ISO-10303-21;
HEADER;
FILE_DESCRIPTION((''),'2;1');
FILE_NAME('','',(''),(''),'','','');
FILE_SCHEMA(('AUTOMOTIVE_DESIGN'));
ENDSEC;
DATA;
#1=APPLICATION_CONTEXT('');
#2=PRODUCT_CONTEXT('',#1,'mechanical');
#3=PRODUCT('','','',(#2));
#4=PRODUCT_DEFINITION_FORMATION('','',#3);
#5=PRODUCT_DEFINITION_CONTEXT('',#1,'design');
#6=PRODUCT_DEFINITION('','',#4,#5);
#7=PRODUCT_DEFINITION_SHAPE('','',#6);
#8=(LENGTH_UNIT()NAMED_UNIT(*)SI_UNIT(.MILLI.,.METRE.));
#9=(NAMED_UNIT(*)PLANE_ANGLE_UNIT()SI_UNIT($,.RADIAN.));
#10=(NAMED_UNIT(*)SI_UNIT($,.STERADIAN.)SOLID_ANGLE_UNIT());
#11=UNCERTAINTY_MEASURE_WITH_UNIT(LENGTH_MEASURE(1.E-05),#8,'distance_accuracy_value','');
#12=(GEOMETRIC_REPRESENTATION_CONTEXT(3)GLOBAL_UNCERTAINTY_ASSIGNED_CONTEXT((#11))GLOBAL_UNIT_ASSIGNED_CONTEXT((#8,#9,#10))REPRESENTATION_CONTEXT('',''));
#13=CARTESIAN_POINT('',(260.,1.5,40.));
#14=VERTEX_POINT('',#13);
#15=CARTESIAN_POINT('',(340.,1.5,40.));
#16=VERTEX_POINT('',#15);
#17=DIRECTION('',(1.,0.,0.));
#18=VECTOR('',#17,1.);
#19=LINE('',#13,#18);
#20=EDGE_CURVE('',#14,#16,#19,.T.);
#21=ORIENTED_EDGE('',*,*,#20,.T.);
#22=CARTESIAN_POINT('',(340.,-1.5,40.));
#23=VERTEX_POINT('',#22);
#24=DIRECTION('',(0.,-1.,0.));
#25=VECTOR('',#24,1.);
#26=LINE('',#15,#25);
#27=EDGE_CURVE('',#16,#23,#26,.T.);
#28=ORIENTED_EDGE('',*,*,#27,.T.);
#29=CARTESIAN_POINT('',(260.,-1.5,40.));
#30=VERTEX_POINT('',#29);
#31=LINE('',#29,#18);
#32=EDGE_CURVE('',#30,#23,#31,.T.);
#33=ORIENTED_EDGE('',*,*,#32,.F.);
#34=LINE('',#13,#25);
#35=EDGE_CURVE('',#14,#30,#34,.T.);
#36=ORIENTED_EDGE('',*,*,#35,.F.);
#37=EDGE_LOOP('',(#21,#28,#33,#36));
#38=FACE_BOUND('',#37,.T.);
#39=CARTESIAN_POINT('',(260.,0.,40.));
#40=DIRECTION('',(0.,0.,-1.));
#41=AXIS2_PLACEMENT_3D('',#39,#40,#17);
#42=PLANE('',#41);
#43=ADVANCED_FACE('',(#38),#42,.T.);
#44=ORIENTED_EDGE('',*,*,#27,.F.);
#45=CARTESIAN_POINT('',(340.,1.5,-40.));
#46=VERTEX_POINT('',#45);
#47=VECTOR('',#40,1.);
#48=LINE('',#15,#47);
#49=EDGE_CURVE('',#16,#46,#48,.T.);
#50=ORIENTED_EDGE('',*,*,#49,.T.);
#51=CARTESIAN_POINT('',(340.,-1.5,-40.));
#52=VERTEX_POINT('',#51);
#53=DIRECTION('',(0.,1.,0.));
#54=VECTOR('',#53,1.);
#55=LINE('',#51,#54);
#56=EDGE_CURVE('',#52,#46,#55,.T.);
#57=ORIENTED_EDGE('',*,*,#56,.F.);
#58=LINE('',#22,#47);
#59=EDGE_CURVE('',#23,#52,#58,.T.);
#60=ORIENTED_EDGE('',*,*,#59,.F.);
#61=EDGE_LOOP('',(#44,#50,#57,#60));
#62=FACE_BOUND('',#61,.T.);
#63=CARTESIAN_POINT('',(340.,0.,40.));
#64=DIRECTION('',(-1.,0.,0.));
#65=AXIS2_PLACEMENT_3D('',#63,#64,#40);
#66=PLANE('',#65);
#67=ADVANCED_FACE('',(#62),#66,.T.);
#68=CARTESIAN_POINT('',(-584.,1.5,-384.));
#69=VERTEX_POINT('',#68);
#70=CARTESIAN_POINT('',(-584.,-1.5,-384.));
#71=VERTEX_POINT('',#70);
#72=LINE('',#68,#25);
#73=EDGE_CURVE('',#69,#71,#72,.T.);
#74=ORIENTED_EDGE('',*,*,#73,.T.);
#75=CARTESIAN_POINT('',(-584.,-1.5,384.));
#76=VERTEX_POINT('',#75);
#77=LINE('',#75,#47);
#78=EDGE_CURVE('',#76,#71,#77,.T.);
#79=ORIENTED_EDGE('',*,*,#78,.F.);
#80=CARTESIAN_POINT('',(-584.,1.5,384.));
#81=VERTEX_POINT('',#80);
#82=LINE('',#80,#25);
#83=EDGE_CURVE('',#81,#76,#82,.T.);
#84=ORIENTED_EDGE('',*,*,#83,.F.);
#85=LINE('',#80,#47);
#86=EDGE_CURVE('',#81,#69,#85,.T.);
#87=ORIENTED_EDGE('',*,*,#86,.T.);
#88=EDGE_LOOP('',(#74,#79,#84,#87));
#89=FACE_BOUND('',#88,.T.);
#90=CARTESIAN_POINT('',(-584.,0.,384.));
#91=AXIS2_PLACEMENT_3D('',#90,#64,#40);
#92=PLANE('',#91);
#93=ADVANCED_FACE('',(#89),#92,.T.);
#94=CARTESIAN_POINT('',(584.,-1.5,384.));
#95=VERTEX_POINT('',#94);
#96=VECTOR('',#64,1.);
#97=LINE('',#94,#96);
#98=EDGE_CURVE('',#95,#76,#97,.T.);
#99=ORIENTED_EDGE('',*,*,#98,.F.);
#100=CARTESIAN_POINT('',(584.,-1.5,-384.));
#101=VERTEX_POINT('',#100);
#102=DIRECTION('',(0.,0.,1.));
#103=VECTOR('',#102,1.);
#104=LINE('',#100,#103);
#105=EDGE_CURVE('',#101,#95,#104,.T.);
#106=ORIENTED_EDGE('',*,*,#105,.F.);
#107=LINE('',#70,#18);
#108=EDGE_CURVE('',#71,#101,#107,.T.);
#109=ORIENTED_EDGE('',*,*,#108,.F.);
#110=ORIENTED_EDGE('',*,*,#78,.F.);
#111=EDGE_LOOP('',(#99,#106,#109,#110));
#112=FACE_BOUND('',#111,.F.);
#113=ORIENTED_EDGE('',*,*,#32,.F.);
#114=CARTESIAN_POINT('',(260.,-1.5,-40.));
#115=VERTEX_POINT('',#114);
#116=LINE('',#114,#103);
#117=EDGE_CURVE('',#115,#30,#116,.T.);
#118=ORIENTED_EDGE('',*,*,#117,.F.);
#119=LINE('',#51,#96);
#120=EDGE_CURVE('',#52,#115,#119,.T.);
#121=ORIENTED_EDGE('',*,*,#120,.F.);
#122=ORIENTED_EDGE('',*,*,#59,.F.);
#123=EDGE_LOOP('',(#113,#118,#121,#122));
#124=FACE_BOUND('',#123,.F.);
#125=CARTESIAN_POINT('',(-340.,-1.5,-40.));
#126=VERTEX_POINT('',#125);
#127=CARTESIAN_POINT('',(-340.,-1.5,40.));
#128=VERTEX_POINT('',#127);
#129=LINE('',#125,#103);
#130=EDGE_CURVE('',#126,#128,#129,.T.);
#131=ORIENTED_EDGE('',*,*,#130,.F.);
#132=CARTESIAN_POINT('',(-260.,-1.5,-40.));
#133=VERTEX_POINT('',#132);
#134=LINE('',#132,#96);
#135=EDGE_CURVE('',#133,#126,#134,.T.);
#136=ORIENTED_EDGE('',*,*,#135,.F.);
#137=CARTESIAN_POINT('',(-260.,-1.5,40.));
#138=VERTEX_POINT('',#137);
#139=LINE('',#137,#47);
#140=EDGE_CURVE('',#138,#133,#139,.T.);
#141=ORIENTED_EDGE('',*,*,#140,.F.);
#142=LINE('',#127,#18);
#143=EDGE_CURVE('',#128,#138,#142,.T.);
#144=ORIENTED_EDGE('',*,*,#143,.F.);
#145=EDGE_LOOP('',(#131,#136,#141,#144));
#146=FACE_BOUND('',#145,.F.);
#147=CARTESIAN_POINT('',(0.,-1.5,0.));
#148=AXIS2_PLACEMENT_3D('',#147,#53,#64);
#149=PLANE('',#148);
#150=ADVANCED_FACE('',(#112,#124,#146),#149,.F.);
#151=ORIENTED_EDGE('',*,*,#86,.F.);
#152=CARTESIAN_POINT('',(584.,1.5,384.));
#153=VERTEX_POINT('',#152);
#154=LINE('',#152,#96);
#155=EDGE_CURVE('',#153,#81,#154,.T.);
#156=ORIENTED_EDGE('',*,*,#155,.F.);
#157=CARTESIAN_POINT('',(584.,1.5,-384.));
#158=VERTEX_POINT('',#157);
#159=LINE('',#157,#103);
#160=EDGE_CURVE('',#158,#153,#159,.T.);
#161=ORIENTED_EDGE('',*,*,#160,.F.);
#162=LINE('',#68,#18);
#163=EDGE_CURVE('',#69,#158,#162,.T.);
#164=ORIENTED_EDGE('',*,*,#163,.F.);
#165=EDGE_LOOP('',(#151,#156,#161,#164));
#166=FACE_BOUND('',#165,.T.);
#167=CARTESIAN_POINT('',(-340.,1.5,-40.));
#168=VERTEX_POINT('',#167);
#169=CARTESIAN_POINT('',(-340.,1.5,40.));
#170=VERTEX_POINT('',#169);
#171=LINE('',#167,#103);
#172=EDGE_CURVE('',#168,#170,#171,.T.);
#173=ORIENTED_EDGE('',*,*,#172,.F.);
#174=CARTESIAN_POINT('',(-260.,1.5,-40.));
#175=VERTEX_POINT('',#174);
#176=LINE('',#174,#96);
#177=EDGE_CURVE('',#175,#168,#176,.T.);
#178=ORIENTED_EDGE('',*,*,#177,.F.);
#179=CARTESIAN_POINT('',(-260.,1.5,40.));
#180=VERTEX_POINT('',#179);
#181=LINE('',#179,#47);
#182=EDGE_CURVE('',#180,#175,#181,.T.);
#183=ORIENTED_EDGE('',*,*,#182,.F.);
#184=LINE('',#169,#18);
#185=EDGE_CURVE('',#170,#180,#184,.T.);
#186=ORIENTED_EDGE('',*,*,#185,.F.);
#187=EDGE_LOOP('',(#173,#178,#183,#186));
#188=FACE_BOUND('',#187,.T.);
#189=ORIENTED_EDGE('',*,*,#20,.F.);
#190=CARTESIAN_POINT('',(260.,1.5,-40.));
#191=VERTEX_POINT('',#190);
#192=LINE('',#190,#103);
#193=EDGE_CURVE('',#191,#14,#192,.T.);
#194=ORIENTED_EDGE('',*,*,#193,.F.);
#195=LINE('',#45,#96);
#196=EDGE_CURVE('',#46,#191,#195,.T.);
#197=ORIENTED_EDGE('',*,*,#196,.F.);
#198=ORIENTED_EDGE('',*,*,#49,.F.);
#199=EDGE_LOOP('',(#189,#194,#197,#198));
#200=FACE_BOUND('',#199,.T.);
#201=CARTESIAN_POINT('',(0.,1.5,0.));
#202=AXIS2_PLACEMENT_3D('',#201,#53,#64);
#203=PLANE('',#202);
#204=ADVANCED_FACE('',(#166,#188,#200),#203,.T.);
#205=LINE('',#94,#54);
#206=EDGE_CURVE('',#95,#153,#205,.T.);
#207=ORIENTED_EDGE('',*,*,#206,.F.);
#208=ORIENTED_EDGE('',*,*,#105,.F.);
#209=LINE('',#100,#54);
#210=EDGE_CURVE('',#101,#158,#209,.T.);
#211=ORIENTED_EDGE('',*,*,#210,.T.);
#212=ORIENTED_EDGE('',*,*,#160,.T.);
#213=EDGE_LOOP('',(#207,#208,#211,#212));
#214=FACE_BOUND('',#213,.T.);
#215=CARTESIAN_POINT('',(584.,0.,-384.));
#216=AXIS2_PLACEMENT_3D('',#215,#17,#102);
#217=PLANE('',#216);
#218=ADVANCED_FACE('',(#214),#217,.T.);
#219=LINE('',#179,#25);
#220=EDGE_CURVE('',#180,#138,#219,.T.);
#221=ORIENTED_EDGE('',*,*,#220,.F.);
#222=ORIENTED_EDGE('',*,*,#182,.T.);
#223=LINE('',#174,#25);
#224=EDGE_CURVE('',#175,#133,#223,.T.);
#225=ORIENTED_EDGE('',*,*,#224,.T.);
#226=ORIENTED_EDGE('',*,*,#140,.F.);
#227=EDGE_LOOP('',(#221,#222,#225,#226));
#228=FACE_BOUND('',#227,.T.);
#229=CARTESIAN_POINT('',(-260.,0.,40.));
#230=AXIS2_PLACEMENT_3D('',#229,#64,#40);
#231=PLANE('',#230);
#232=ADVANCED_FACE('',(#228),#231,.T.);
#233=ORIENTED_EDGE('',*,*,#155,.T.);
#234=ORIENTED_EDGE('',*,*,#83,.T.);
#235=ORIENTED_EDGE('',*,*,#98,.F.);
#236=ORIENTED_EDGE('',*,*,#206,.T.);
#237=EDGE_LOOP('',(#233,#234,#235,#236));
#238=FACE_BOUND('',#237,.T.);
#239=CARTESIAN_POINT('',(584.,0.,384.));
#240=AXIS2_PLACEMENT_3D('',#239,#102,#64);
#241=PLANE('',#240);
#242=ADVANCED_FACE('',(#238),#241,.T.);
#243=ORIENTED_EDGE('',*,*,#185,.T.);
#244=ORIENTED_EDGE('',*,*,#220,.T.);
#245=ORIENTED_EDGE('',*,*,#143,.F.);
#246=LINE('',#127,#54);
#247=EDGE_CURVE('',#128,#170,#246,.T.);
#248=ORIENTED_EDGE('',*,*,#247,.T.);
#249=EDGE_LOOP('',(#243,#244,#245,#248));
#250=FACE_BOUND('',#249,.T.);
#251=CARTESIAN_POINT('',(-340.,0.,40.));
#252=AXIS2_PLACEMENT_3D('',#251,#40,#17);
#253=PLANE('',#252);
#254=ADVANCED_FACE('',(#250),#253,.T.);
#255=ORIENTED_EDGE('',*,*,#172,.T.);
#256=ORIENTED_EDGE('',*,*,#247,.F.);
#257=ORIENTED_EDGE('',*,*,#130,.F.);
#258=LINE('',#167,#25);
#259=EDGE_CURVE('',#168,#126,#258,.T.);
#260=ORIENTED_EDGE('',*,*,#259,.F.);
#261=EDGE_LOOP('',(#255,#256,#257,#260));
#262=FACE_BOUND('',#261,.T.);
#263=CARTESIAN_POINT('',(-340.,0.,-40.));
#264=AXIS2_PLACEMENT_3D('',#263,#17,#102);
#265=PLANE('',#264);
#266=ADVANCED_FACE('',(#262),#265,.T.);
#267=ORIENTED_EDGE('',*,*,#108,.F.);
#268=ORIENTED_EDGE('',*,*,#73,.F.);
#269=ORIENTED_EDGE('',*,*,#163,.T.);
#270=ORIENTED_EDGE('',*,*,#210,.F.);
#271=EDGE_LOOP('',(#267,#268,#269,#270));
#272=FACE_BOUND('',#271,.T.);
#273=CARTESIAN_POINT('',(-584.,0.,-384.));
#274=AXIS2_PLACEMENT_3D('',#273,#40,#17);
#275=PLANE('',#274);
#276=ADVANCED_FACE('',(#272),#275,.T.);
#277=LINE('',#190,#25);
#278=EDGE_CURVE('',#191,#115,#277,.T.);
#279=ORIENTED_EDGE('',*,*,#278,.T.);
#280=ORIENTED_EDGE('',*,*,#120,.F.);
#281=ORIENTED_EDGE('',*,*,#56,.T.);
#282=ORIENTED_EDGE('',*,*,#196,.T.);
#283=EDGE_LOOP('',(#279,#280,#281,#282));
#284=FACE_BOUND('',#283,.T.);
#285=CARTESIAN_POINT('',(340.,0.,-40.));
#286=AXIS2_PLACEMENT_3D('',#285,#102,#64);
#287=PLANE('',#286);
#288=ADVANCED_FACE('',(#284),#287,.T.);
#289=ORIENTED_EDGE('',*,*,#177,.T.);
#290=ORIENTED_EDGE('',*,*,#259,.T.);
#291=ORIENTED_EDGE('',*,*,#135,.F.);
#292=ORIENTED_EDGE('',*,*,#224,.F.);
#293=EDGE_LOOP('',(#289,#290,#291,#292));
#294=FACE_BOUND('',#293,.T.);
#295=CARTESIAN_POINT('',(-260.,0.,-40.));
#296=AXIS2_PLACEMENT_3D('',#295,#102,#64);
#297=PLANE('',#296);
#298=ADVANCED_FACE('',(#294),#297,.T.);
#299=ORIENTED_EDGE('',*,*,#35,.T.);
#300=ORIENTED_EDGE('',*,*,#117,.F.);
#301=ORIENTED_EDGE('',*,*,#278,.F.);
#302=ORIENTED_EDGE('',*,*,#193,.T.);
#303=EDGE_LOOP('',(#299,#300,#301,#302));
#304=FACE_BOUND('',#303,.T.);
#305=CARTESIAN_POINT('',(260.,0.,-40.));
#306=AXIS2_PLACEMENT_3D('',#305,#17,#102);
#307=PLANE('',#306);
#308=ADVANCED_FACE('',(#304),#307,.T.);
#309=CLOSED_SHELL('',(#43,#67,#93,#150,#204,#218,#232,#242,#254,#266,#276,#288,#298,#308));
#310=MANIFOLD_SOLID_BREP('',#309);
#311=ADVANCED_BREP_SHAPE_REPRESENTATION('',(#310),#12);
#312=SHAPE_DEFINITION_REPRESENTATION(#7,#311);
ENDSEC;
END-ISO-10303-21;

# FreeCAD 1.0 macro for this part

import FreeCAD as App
import Part
import Sketcher

doc = App.newDocument("Part")
body = doc.addObject("PartDesign::Body", "Body")

# Sketch on XZ plane
sketch1 = body.newObject("Sketcher::SketchObject", "Sketch")
sketch1.AttachmentSupport = (doc.getObject("XZ_Plane"), [""])
sketch1.MapMode = "FlatFace"
sketch1.addGeometry(Part.LineSegment(App.Vector(-584, 384, 0), App.Vector(584, 384, 0)), False)
sketch1.addGeometry(Part.LineSegment(App.Vector(584, 384, 0), App.Vector(584, -384, 0)), False)
sketch1.addGeometry(Part.LineSegment(App.Vector(584, -384, 0), App.Vector(-584, -384, 0)), False)
sketch1.addGeometry(Part.LineSegment(App.Vector(-584, -384, 0), App.Vector(-584, 384, 0)), False)
sketch1.addGeometry(Part.LineSegment(App.Vector(260, -40, 0), App.Vector(340, -40, 0)), False)
sketch1.addGeometry(Part.LineSegment(App.Vector(340, -40, 0), App.Vector(340, 40, 0)), False)
sketch1.addGeometry(Part.LineSegment(App.Vector(340, 40, 0), App.Vector(260, 40, 0)), False)
sketch1.addGeometry(Part.LineSegment(App.Vector(260, 40, 0), App.Vector(260, -40, 0)), False)
sketch1.addGeometry(Part.LineSegment(App.Vector(-260, 40, 0), App.Vector(-340, 40, 0)), False)
sketch1.addGeometry(Part.LineSegment(App.Vector(-340, 40, 0), App.Vector(-340, -40, 0)), False)
sketch1.addGeometry(Part.LineSegment(App.Vector(-340, -40, 0), App.Vector(-260, -40, 0)), False)
sketch1.addGeometry(Part.LineSegment(App.Vector(-260, -40, 0), App.Vector(-260, 40, 0)), False)
sketch1.addConstraint(Sketcher.Constraint("Coincident", 0, 2, 1, 1))
sketch1.addConstraint(Sketcher.Constraint("Coincident", 1, 2, 2, 1))
sketch1.addConstraint(Sketcher.Constraint("Coincident", 2, 2, 3, 1))
sketch1.addConstraint(Sketcher.Constraint("Coincident", 3, 2, 0, 1))
sketch1.addConstraint(Sketcher.Constraint("Coincident", 4, 2, 5, 1))
sketch1.addConstraint(Sketcher.Constraint("Coincident", 5, 2, 6, 1))
sketch1.addConstraint(Sketcher.Constraint("Coincident", 6, 2, 7, 1))
sketch1.addConstraint(Sketcher.Constraint("Coincident", 7, 2, 4, 1))
sketch1.addConstraint(Sketcher.Constraint("Coincident", 8, 2, 9, 1))
sketch1.addConstraint(Sketcher.Constraint("Coincident", 9, 2, 10, 1))
sketch1.addConstraint(Sketcher.Constraint("Coincident", 10, 2, 11, 1))
sketch1.addConstraint(Sketcher.Constraint("Coincident", 11, 2, 8, 1))
sketch1.addConstraint(Sketcher.Constraint("Horizontal", 0))
sketch1.addConstraint(Sketcher.Constraint("Vertical", 1))
sketch1.addConstraint(Sketcher.Constraint("Horizontal", 2))
sketch1.addConstraint(Sketcher.Constraint("Vertical", 3))
sketch1.addConstraint(Sketcher.Constraint("Horizontal", 4))
sketch1.addConstraint(Sketcher.Constraint("Vertical", 5))
sketch1.addConstraint(Sketcher.Constraint("Horizontal", 6))
sketch1.addConstraint(Sketcher.Constraint("Vertical", 7))
sketch1.addConstraint(Sketcher.Constraint("Horizontal", 8))
sketch1.addConstraint(Sketcher.Constraint("Vertical", 9))
sketch1.addConstraint(Sketcher.Constraint("Horizontal", 10))
sketch1.addConstraint(Sketcher.Constraint("Vertical", 11))
sketch1.addConstraint(Sketcher.Constraint("Symmetric", 0, 2, 2, 2, -1, 1))
sketch1.addConstraint(Sketcher.Constraint("Symmetric", 4, 2, 8, 2, -1, 1))
sketch1.addConstraint(Sketcher.Constraint("Symmetric", 6, 2, 10, 2, -1, 1))
sketch1.addConstraint(Sketcher.Constraint("Horizontal", 6, 2, 8, 2))
sketch1.addConstraint(Sketcher.Constraint("Equal", 10, 5))
sketch1.addConstraint(Sketcher.Constraint("DistanceX", 0, 1, 0, 2, 1168.0))
sketch1.addConstraint(Sketcher.Constraint("DistanceX", 4, 1, 4, 2, 80.0))
sketch1.addConstraint(Sketcher.Constraint("DistanceY", 1, 2, 1, 1, 768.0))
sketch1.addConstraint(Sketcher.Constraint("DistanceX", 8, 2, 6, 2, 600.0))
pad1 = body.newObject("PartDesign::Pad", "Pad")
pad1.Profile = sketch1
pad1.Length = 3
pad1.Midplane = True

doc.recompute()
